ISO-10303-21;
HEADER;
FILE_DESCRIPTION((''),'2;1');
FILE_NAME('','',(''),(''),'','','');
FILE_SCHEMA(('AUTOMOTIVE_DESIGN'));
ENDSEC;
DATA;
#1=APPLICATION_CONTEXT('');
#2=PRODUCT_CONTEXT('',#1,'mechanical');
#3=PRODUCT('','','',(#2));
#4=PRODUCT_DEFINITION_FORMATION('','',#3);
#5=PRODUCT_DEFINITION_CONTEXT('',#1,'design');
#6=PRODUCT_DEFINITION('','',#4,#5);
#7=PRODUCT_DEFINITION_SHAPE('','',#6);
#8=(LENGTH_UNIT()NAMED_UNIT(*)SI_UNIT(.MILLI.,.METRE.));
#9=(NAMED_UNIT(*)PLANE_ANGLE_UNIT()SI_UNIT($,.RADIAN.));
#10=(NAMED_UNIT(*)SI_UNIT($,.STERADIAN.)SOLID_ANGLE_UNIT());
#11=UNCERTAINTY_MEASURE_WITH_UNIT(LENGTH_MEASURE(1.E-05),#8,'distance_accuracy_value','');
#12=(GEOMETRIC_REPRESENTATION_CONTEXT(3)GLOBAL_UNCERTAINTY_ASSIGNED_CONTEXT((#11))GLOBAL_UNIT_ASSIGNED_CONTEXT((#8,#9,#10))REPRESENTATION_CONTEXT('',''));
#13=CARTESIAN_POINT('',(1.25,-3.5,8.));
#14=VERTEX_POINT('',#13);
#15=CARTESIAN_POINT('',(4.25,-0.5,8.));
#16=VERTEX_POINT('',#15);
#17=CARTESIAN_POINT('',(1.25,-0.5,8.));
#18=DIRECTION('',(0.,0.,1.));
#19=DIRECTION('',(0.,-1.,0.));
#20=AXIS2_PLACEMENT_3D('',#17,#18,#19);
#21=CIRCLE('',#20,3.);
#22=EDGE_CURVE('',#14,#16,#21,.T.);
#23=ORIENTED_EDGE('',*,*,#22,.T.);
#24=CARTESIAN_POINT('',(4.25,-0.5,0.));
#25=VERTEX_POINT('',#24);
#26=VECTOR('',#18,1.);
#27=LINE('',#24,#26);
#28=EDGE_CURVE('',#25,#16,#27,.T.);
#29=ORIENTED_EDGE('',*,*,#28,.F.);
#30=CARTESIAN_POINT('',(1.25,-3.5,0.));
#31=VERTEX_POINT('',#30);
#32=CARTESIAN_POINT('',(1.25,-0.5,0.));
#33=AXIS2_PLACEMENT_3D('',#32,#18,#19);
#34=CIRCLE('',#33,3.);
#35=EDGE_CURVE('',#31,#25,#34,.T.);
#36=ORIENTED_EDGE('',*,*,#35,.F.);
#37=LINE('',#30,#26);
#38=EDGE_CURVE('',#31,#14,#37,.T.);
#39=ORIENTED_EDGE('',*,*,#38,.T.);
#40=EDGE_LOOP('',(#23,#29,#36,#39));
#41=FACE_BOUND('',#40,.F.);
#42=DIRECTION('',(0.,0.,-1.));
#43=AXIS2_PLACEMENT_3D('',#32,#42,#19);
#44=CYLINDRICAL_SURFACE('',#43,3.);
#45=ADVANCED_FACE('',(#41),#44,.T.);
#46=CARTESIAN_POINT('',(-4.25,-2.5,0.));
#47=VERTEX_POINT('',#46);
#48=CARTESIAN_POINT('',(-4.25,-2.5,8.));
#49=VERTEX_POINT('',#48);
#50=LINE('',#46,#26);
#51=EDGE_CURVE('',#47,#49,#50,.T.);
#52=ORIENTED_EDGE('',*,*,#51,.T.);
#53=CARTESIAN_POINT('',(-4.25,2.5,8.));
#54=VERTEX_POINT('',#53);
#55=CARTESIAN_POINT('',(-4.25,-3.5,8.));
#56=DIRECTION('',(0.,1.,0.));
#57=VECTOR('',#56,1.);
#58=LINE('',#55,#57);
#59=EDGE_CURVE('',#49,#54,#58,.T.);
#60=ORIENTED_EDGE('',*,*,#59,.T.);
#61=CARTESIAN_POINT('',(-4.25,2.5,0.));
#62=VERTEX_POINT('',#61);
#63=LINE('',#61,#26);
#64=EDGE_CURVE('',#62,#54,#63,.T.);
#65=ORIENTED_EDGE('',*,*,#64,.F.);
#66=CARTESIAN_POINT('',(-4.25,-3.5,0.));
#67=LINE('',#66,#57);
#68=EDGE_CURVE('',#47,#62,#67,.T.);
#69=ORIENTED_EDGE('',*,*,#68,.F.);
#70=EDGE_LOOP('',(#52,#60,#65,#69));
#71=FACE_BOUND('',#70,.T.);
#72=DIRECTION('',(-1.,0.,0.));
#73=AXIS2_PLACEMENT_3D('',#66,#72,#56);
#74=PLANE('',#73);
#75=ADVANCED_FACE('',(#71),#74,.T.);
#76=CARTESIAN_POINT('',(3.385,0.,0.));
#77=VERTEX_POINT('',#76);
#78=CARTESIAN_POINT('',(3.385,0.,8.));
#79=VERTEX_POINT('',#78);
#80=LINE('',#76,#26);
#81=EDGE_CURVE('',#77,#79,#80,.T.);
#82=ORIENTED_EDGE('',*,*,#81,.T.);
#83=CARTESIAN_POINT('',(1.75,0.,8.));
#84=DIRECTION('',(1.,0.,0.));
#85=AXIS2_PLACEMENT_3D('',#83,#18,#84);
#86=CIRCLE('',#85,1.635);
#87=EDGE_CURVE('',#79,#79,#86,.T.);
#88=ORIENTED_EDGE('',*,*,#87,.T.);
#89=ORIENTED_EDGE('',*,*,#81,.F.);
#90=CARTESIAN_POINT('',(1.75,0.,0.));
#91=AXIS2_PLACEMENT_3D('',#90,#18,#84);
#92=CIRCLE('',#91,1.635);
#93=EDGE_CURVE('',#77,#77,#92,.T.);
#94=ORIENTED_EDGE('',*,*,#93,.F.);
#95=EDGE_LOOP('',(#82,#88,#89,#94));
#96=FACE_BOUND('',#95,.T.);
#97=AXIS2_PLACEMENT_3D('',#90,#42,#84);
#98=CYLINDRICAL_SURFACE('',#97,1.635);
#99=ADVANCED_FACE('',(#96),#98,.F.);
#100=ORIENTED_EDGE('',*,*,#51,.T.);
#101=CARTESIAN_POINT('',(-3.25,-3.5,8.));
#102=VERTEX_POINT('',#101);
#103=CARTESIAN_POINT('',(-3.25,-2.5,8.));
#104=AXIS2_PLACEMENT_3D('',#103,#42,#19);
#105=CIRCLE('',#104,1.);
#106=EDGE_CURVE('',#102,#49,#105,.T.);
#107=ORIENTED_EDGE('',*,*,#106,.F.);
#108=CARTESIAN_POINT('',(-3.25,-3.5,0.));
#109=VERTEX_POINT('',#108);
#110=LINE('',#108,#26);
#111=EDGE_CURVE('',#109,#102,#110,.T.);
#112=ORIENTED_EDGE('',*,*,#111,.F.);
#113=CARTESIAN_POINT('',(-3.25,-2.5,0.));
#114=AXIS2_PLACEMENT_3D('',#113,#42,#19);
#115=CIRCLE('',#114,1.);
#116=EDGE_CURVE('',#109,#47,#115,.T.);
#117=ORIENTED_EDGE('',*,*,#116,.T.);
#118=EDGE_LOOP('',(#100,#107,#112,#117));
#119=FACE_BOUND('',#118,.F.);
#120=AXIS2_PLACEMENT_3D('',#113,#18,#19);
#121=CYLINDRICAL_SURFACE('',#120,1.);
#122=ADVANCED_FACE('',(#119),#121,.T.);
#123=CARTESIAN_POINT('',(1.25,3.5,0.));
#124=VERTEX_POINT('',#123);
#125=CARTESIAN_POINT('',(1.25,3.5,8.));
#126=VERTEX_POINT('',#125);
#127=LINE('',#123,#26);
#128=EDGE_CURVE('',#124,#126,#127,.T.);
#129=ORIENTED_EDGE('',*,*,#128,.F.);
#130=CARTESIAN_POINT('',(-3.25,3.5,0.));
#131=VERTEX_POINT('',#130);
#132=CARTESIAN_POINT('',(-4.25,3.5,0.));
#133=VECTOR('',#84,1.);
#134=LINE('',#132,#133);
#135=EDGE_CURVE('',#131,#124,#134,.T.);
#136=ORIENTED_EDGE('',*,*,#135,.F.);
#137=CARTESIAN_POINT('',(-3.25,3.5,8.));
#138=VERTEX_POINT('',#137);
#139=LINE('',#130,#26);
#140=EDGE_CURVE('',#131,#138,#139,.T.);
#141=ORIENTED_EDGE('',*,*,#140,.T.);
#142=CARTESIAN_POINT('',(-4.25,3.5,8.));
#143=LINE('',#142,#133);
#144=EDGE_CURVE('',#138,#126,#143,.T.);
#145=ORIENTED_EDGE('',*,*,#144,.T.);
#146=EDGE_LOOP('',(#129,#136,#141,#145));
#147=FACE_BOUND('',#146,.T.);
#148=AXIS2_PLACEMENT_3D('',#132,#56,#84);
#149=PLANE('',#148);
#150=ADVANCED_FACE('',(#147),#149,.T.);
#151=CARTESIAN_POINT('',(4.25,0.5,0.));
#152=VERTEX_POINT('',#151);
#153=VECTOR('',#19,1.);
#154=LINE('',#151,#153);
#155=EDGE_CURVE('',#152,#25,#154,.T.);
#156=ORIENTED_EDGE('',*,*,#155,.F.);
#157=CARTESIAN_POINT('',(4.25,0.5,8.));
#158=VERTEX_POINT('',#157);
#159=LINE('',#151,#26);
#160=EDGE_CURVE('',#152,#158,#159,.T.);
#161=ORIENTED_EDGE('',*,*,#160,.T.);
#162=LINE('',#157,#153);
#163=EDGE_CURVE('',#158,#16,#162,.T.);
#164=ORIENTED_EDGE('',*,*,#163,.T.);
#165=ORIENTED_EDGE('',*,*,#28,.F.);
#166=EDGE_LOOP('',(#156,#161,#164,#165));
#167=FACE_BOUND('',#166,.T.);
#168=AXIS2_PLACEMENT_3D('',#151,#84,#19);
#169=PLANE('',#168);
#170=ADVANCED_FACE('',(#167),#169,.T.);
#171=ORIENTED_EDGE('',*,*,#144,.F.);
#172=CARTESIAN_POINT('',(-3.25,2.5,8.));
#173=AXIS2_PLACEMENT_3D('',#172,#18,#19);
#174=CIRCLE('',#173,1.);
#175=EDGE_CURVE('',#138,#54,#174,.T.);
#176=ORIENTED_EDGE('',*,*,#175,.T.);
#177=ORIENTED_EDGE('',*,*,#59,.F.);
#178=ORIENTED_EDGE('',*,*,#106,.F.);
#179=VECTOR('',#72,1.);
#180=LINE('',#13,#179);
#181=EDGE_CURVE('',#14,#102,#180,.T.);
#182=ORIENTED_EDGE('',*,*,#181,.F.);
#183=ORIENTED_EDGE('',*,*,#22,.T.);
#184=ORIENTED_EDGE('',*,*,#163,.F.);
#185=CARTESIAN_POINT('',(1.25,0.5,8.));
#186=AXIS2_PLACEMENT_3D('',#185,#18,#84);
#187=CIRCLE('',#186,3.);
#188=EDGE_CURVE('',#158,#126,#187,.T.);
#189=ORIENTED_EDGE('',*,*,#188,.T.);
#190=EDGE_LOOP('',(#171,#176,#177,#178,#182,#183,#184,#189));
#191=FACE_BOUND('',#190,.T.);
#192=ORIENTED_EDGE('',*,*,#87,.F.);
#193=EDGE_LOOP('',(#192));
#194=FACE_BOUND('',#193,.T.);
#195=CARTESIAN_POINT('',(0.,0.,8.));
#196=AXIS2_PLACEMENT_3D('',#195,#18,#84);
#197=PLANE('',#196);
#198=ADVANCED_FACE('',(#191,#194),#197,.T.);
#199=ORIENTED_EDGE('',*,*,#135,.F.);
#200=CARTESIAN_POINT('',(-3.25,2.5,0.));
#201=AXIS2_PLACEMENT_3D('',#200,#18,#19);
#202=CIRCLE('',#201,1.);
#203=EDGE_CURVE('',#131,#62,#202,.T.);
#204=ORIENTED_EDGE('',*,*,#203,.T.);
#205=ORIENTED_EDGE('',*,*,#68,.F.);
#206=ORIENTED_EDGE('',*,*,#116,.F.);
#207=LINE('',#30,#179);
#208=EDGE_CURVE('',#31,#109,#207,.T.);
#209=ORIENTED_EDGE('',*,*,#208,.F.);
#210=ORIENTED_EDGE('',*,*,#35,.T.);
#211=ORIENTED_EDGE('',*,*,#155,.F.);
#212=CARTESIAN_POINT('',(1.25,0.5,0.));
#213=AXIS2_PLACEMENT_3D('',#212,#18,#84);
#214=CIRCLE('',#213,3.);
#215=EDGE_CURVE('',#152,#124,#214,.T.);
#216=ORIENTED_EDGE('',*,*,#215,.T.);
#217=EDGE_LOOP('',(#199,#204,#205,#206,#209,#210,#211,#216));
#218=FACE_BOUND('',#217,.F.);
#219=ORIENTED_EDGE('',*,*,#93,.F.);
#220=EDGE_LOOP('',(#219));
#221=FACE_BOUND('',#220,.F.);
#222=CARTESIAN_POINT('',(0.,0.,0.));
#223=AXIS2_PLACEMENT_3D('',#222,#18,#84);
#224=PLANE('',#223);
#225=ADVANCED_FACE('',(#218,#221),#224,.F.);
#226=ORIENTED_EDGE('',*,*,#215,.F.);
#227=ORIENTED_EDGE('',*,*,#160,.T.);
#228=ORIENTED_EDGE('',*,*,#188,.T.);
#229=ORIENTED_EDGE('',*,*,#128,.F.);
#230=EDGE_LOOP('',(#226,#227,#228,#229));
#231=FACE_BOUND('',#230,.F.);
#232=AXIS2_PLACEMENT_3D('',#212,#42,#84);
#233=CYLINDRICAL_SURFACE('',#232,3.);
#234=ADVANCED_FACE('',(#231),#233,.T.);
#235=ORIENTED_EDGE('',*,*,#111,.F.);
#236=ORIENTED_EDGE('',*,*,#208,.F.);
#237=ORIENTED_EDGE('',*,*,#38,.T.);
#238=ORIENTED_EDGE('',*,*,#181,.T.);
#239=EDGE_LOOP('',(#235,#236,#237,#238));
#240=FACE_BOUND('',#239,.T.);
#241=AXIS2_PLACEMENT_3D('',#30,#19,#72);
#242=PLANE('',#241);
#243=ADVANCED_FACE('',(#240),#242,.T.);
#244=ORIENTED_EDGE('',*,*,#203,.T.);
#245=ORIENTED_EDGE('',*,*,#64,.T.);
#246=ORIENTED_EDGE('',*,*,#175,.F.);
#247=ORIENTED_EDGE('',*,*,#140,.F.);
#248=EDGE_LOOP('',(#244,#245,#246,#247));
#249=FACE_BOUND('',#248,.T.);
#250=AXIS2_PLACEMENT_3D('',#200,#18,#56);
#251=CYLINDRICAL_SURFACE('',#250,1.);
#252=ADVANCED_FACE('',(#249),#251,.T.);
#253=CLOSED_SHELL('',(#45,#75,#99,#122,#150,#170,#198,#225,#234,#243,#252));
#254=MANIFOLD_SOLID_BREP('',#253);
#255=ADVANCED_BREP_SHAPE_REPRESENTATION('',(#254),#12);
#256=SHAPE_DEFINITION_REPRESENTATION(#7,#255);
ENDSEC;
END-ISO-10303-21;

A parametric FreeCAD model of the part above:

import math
import FreeCAD as App
import Part
import Sketcher

V = App.Vector
Q = App.Units.Quantity


def edges_at(feature, points):
    """Names of the edges that pass closest to the given points."""
    edges = feature.Shape.Edges
    near = lambda p: min(range(len(edges)), key=lambda i: edges[i].distToShape(Part.Vertex(*p))[0])
    return sorted({f"Edge{near(p) + 1}" for p in points})

doc = App.newDocument("Part")
params = doc.addObject("Spreadsheet::Sheet", "Params")
for row, (alias, value) in enumerate([
    ("sketch1_radius", "3 mm"),
    ("sketch1_diameter", "3.27 mm"),
    ("sketch1_height", "7 mm"),
    ("pad1_length", "8 mm"),
    ("fillet_radius", "1 mm"),
], start=1):
    params.set(f"A{row}", alias)
    params.set(f"B{row}", "=" + value)
    params.setAlias(f"B{row}", alias)

body = doc.addObject("PartDesign::Body", "Body")

sketch1 = doc.addObject("Sketcher::SketchObject", "Sketch")
body.addObject(sketch1)
sketch1.AttachmentSupport = (doc.XY_Plane, [""])
sketch1.MapMode = "FlatFace"
sketch1.addGeometry(Part.LineSegment(V(1.2, 3.5, 0), V(-4.2, 3.5, 0)), False)
sketch1.addGeometry(Part.LineSegment(V(-4.2, 3.5, 0), V(-4.2, -3.5, 0)), False)
sketch1.addGeometry(Part.LineSegment(V(-4.2, -3.5, 0), V(1.2, -3.5, 0)), False)
sketch1.addGeometry(Part.ArcOfCircle(Part.Circle(V(1.2, -0.5, 0), V(0, 0, 1), 3), math.radians(-90), math.radians(0)), False)
sketch1.addGeometry(Part.LineSegment(V(4.2, -0.5, 0), V(4.2, 0.5, 0)), False)
sketch1.addGeometry(Part.ArcOfCircle(Part.Circle(V(1.2, 0.5, 0), V(0, 0, 1), 3), math.radians(0), math.radians(90)), False)
sketch1.addGeometry(Part.Circle(V(1.8, 0, 0), V(0, 0, 1), 1.6), False)
sketch1.addConstraint(Sketcher.Constraint("Coincident", 0, 2, 1, 1))
sketch1.addConstraint(Sketcher.Constraint("Coincident", 1, 2, 2, 1))
sketch1.addConstraint(Sketcher.Constraint("Tangent", 2, 2, 3, 1))
sketch1.addConstraint(Sketcher.Constraint("Tangent", 3, 2, 4, 1))
sketch1.addConstraint(Sketcher.Constraint("Tangent", 4, 2, 5, 1))
sketch1.addConstraint(Sketcher.Constraint("Tangent", 5, 2, 0, 1))
sketch1.addConstraint(Sketcher.Constraint("Horizontal", 0))
sketch1.addConstraint(Sketcher.Constraint("Vertical", 1))
sketch1.addConstraint(Sketcher.Constraint("Horizontal", 2))
sketch1.addConstraint(Sketcher.Constraint("Vertical", 4))
sketch1.addConstraint(Sketcher.Constraint("Equal", 3, 5))
sketch1.addConstraint(Sketcher.Constraint("PointOnObject", 6, 3, -1))
sketch1.addConstraint(Sketcher.Constraint("Radius", 3, Q("3 mm")))
sketch1.addConstraint(Sketcher.Constraint("Diameter", 6, Q("3.27 mm")))
sketch1.addConstraint(Sketcher.Constraint("DistanceY", 1, 2, 1, 1, Q("7 mm")))
sketch1.addConstraint(Sketcher.Constraint("DistanceX", 6, 3, 3, 2, Q("2.5 mm")))
sketch1.addConstraint(Sketcher.Constraint("DistanceX", 1, 2, 3, 2, Q("8.5 mm")))
sketch1.addConstraint(Sketcher.Constraint("DistanceY", 3, 3, -1, 1, Q("0.5 mm")))
sketch1.addConstraint(Sketcher.Constraint("DistanceX", -1, 1, 3, 3, Q("1.25 mm")))
sketch1.setExpression("Constraints[12]", "Params.sketch1_radius")
sketch1.setExpression("Constraints[13]", "Params.sketch1_diameter")
sketch1.setExpression("Constraints[14]", "Params.sketch1_height")
pad1 = doc.addObject("PartDesign::Pad", "Pad")
body.addObject(pad1)
pad1.Profile = sketch1
pad1.setExpression("Length", "Params.pad1_length")
doc.recompute()

fillet = doc.addObject("PartDesign::Fillet", "Fillet")
body.addObject(fillet)
fillet.Base = (pad1, edges_at(pad1, [(-4.25, 3.5, 4), (-4.25, -3.5, 4)]))
fillet.setExpression("Radius", "Params.fillet_radius")

doc.recompute()
